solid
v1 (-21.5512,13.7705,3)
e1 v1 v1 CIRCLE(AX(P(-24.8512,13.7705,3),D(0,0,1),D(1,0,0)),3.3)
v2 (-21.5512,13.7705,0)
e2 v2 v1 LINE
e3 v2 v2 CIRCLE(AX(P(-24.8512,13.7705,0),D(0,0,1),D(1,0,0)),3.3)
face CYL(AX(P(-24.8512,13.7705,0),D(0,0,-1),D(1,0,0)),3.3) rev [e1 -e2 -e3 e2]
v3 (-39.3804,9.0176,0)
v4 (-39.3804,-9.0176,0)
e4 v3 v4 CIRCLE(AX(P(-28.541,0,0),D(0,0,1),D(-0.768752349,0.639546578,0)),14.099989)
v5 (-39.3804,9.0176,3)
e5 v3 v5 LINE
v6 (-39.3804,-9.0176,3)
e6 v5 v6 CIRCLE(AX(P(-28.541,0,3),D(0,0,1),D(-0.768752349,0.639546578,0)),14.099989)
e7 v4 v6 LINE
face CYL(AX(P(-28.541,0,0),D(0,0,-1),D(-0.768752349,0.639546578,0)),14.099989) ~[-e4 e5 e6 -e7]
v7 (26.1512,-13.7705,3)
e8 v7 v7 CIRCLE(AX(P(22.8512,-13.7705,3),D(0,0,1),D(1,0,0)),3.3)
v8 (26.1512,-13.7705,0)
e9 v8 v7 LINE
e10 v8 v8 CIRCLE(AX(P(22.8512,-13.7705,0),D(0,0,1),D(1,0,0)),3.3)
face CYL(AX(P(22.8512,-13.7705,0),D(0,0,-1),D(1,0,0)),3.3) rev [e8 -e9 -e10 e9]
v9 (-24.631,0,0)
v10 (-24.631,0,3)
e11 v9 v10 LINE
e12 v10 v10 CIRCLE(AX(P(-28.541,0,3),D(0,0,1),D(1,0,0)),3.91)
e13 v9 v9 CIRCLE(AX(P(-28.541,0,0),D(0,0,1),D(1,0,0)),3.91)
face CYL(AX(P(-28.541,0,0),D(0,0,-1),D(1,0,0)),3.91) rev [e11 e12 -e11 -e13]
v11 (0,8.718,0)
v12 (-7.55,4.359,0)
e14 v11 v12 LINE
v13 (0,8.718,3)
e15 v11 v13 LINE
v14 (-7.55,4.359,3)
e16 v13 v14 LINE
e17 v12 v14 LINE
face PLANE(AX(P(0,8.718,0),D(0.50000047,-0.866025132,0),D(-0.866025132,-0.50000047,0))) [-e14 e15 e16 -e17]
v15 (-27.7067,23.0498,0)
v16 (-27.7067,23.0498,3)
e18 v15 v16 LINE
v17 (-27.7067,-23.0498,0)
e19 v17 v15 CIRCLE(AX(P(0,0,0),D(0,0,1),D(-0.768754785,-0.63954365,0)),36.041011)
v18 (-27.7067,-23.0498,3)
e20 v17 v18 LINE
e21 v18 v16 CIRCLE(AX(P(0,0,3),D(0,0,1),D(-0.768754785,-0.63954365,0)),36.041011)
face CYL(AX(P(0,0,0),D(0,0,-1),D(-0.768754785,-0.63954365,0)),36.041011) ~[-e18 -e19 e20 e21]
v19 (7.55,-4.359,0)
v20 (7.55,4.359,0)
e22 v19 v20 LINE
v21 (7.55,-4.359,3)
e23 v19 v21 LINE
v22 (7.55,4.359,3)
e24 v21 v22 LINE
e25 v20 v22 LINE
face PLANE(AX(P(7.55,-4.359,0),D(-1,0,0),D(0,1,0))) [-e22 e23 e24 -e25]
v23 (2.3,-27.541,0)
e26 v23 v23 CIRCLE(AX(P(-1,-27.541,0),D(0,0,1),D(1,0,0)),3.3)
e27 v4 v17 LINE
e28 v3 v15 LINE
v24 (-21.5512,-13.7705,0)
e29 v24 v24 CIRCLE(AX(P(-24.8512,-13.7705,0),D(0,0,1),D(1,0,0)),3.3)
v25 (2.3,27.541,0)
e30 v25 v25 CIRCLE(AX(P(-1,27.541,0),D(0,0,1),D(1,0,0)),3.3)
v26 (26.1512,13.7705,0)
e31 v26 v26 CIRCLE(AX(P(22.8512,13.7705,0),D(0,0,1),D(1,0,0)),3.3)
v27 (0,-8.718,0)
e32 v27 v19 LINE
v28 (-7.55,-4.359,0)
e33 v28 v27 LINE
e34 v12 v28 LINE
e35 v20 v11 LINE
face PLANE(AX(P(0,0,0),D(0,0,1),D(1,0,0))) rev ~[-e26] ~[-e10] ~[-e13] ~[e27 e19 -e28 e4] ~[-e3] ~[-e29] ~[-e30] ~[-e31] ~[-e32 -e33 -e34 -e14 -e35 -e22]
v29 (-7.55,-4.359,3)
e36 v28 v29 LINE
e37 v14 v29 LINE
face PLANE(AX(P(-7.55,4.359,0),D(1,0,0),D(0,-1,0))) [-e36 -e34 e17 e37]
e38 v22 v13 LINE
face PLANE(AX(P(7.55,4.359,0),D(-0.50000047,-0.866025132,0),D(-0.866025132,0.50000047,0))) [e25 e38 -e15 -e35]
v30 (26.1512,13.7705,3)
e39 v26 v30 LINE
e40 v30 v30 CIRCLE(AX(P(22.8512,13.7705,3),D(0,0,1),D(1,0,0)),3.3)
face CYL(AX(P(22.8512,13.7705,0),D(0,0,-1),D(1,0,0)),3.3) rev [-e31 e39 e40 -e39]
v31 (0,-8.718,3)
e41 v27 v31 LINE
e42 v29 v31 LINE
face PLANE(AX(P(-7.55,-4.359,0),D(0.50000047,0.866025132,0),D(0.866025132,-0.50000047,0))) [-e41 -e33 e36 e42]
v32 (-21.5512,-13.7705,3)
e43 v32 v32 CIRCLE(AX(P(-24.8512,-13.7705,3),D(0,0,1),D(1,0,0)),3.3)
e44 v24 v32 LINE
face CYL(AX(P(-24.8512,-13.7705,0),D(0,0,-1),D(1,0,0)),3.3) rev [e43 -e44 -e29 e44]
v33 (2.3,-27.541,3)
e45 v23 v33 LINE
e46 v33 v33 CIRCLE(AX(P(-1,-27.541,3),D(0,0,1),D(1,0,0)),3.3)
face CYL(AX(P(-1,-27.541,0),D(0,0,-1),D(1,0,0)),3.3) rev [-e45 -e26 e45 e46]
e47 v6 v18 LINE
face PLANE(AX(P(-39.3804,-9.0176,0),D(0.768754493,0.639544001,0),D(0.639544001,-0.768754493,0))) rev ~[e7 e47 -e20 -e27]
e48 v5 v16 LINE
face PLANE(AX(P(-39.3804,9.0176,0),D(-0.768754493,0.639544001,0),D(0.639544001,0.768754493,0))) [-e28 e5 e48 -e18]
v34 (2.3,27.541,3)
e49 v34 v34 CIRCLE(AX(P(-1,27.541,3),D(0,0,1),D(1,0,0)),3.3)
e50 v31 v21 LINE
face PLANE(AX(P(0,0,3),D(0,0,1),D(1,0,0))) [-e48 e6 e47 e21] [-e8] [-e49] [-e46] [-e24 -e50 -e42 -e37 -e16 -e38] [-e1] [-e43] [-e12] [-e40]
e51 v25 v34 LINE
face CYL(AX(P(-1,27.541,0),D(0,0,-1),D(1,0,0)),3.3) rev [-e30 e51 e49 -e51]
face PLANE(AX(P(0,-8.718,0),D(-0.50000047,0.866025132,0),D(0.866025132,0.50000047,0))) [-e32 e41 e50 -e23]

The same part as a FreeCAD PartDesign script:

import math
import FreeCAD as App
import Part
import Sketcher

V = App.Vector
Q = App.Units.Quantity


def add_polygon(sketch, points):
    """Adds a closed chain of lines whose ends are joined by coincident constraints."""
    first, n = sketch.GeometryCount, len(points)
    for a, b in zip(points, points[1:] + points[:1]):
        sketch.addGeometry(Part.LineSegment(App.Vector(*a, 0), App.Vector(*b, 0)), False)
    for i in range(n):
        sketch.addConstraint(Sketcher.Constraint("Coincident", first + i, 2, first + (i + 1) % n, 1))

doc = App.newDocument("Part")
params = doc.addObject("Spreadsheet::Sheet", "Params")
for row, (alias, value) in enumerate([
    ("sketch1_diameter", "6.6 mm"),
    ("sketch1_diameter2", "7.82 mm"),
    ("sketch1_radius", "14.1 mm"),
    ("pad1_length", "3 mm"),
], start=1):
    params.set(f"A{row}", alias)
    params.set(f"B{row}", "=" + value)
    params.setAlias(f"B{row}", alias)

body = doc.addObject("PartDesign::Body", "Body")

# Sketch on XY plane
sketch1 = body.newObject("Sketcher::SketchObject", "Sketch")
sketch1.AttachmentSupport = (doc.getObject("XY_Plane"), [""])
sketch1.MapMode = "FlatFace"
sketch1.addGeometry(Part.LineSegment(V(-27.7, 23, 0), V(-39.4, 9, 0)), False)  # 0
sketch1.addGeometry(Part.ArcOfCircle(Part.Circle(V(-28.5, 0, 0), V(0, 0, 1), 14.1), math.radians(140), math.radians(220)), False)  # 1
sketch1.addGeometry(Part.LineSegment(V(-39.4, -9, 0), V(-27.7, -23, 0)), False)  # 2
sketch1.addGeometry(Part.ArcOfCircle(Part.Circle(V(0, 0, 0), V(0, 0, 1), 36), math.radians(-140), math.radians(140)), False)  # 3
sketch1.addGeometry(Part.Circle(V(-24.9, -13.8, 0), V(0, 0, 1), 3.3), False)  # 4
sketch1.addGeometry(Part.Circle(V(-1, -27.5, 0), V(0, 0, 1), 3.3), False)  # 5
sketch1.addGeometry(Part.Circle(V(22.9, -13.8, 0), V(0, 0, 1), 3.3), False)  # 6
sketch1.addGeometry(Part.Circle(V(-28.5, 0, 0), V(0, 0, 1), 3.9), False)  # 7
sketch1.addGeometry(Part.Circle(V(-24.9, 13.8, 0), V(0, 0, 1), 3.3), False)  # 8
add_polygon(sketch1, [(0, 8.7), (7.5, 4.4), (7.5, -4.4), (0, -8.7), (-7.5, -4.4), (-7.5, 4.4)])  # lines 9-14
sketch1.addGeometry(Part.Circle(V(22.9, 13.8, 0), V(0, 0, 1), 3.3), False)  # 15
sketch1.addGeometry(Part.Circle(V(-1, 27.5, 0), V(0, 0, 1), 3.3), False)  # 16
sketch1.addConstraint(Sketcher.Constraint("Tangent", 0, 2, 1, 1))
sketch1.addConstraint(Sketcher.Constraint("Tangent", 1, 2, 2, 1))
sketch1.addConstraint(Sketcher.Constraint("Tangent", 2, 2, 3, 1))
sketch1.addConstraint(Sketcher.Constraint("Tangent", 3, 2, 0, 1))
sketch1.addConstraint(Sketcher.Constraint("Vertical", 10))
sketch1.addConstraint(Sketcher.Constraint("Vertical", 13))
sketch1.addConstraint(Sketcher.Constraint("Coincident", 3, 3, -1, 1))
sketch1.addConstraint(Sketcher.Constraint("Coincident", 7, 3, 1, 3))
sketch1.addConstraint(Sketcher.Constraint("Equal", 4, 5))
sketch1.addConstraint(Sketcher.Constraint("Equal", 5, 6))
sketch1.addConstraint(Sketcher.Constraint("Equal", 6, 8))
sketch1.addConstraint(Sketcher.Constraint("Equal", 8, 15))
sketch1.addConstraint(Sketcher.Constraint("Equal", 15, 16))
sketch1.addConstraint(Sketcher.Constraint("Symmetric", 9, 2, 12, 2, -1, 1))
sketch1.addConstraint(Sketcher.Constraint("Symmetric", 11, 2, 14, 2, -1, 1))
sketch1.addConstraint(Sketcher.Constraint("Symmetric", 4, 3, 8, 3, -1))
sketch1.addConstraint(Sketcher.Constraint("Symmetric", 6, 3, 15, 3, -1))
sketch1.addConstraint(Sketcher.Constraint("Symmetric", 5, 3, 16, 3, -1))
sketch1.addConstraint(Sketcher.Constraint("PointOnObject", 1, 3, -1))
sketch1.addConstraint(Sketcher.Constraint("PointOnObject", 11, 2, -2))
sketch1.addConstraint(Sketcher.Constraint("Parallel", 11, 14))
sketch1.addConstraint(Sketcher.Constraint("Horizontal", 4, 3, 6, 3))
sketch1.addConstraint(Sketcher.Constraint("Horizontal", 10, 2, 12, 2))
sketch1.addConstraint(Sketcher.Constraint("Diameter", 4, Q("6.6 mm")))
sketch1.addConstraint(Sketcher.Constraint("Diameter", 7, Q("7.82 mm")))
sketch1.addConstraint(Sketcher.Constraint("Radius", 3, Q("36.041 mm")))
sketch1.addConstraint(Sketcher.Constraint("Radius", 1, Q("14.1 mm")))
sketch1.addConstraint(Sketcher.Constraint("Angle", 9, Q("-30 deg")))
sketch1.addConstraint(Sketcher.Constraint("DistanceX", 5, 3, -1, 1, Q("1 mm")))
sketch1.addConstraint(Sketcher.Constraint("DistanceY", 5, 3, 9, 2, Q("31.9 mm")))
sketch1.addConstraint(Sketcher.Constraint("DistanceX", 12, 2, 10, 2, Q("15.1 mm")))
sketch1.addConstraint(Sketcher.Constraint("DistanceY", 10, 2, 10, 1, Q("8.718 mm")))
sketch1.addConstraint(Sketcher.Constraint("DistanceX", 1, 3, -1, 1, Q("28.541 mm")))
sketch1.addConstraint(Sketcher.Constraint("DistanceY", 4, 3, 8, 3, Q("27.541 mm")))
sketch1.addConstraint(Sketcher.Constraint("DistanceX", 4, 3, -1, 1, Q("24.8512 mm")))
sketch1.addConstraint(Sketcher.Constraint("DistanceX", -1, 1, 6, 3, Q("22.8512 mm")))
sketch1.setExpression("Constraints[29]", "Params.sketch1_diameter")
sketch1.setExpression("Constraints[30]", "Params.sketch1_diameter2")
sketch1.setExpression("Constraints[32]", "Params.sketch1_radius")
pad1 = body.newObject("PartDesign::Pad", "Pad")
pad1.Profile = sketch1
pad1.setExpression("Length", "Params.pad1_length")

doc.recompute()
